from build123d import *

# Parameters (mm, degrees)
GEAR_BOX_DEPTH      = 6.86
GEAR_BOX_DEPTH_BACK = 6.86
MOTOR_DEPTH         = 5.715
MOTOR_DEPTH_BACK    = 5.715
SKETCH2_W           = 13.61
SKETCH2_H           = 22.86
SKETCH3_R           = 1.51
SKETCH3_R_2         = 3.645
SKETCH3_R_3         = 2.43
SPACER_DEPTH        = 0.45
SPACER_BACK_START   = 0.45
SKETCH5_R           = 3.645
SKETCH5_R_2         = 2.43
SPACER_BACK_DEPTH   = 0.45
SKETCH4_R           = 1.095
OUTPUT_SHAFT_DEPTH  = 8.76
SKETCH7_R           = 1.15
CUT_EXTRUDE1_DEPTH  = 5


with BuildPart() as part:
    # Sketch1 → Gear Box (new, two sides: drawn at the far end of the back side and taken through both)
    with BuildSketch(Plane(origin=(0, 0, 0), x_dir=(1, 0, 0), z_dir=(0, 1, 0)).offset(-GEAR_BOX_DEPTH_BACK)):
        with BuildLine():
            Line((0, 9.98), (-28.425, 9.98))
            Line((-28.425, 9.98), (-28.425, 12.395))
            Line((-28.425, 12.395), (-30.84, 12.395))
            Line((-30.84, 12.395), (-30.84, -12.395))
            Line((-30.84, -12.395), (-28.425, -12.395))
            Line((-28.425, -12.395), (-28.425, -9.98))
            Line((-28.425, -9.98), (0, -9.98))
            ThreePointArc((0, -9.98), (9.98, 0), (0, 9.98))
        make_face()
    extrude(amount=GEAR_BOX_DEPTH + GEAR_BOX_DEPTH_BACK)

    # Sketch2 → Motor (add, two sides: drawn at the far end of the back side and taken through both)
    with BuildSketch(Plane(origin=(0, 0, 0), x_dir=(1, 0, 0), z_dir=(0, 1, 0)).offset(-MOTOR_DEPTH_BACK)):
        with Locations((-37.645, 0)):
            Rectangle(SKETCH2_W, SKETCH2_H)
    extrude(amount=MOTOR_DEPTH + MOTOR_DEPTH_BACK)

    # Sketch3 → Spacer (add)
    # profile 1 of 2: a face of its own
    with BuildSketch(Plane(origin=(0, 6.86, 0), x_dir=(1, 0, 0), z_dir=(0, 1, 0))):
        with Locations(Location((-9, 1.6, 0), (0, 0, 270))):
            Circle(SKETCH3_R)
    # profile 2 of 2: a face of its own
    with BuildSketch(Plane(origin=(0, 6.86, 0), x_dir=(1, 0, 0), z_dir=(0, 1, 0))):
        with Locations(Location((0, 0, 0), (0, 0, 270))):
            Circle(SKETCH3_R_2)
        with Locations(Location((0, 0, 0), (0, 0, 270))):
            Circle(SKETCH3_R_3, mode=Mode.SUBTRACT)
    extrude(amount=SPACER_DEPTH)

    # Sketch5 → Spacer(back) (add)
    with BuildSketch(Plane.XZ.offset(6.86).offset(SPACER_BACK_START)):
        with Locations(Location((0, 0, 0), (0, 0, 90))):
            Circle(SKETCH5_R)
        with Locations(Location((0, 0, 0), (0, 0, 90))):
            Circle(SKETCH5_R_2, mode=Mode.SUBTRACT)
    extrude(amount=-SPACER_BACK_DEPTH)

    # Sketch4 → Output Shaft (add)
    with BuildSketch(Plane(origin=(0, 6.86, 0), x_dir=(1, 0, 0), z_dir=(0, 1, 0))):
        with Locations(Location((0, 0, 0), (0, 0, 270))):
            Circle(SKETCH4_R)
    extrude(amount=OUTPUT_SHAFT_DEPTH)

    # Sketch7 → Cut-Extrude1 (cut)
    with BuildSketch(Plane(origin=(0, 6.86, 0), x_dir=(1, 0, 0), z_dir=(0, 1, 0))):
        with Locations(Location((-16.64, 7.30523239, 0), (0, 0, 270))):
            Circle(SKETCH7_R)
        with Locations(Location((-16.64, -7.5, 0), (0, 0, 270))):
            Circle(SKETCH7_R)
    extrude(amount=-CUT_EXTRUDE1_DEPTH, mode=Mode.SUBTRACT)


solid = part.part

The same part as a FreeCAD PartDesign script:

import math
import FreeCAD as App
import Part
import Sketcher

V = App.Vector
Q = App.Units.Quantity


def add_polygon(sketch, points):
    """Adds a closed chain of lines whose ends are joined by coincident constraints."""
    first, n = sketch.GeometryCount, len(points)
    for a, b in zip(points, points[1:] + points[:1]):
        sketch.addGeometry(Part.LineSegment(App.Vector(*a, 0), App.Vector(*b, 0)), False)
    for i in range(n):
        sketch.addConstraint(Sketcher.Constraint("Coincident", first + i, 2, first + (i + 1) % n, 1))

doc = App.newDocument("Part")
body = doc.addObject("PartDesign::Body", "Body")

sketch1 = doc.addObject("Sketcher::SketchObject", "Sketch")
body.addObject(sketch1)
sketch1.AttachmentSupport = (doc.XZ_Plane, [""])
sketch1.MapMode = "FlatFace"
sketch1.addGeometry([
    Part.LineSegment(V(0, -10, 0), V(-28.4, -10, 0)),
    Part.LineSegment(V(-28.4, -10, 0), V(-28.4, -12.4, 0)),
    Part.LineSegment(V(-28.4, -12.4, 0), V(-30.8, -12.4, 0)),
    Part.LineSegment(V(-30.8, -12.4, 0), V(-30.8, 12.4, 0)),
    Part.LineSegment(V(-30.8, 12.4, 0), V(-28.4, 12.4, 0)),
    Part.LineSegment(V(-28.4, 12.4, 0), V(-28.4, 10, 0)),
    Part.LineSegment(V(-28.4, 10, 0), V(0, 10, 0)),
    Part.ArcOfCircle(Part.Circle(V(0, 0, 0), V(0, 0, 1), 10), math.radians(-90), math.radians(90)),
], False)
sketch1.addConstraint([
    Sketcher.Constraint("Coincident", 0, 2, 1, 1),
    Sketcher.Constraint("Coincident", 1, 2, 2, 1),
    Sketcher.Constraint("Coincident", 2, 2, 3, 1),
    Sketcher.Constraint("Coincident", 3, 2, 4, 1),
    Sketcher.Constraint("Coincident", 4, 2, 5, 1),
    Sketcher.Constraint("Coincident", 5, 2, 6, 1),
    Sketcher.Constraint("Tangent", 6, 2, 7, 2),
    Sketcher.Constraint("Tangent", 7, 1, 0, 1),
    Sketcher.Constraint("Horizontal", 0),
    Sketcher.Constraint("Vertical", 1),
    Sketcher.Constraint("Horizontal", 2),
    Sketcher.Constraint("Vertical", 3),
    Sketcher.Constraint("Horizontal", 4),
    Sketcher.Constraint("Vertical", 5),
    Sketcher.Constraint("Horizontal", 6),
    Sketcher.Constraint("Coincident", 7, 3, -1, 1),
    Sketcher.Constraint("Symmetric", 1, 2, 4, 2, -1),
    Sketcher.Constraint("Equal", 4, 1),
    Sketcher.Constraint("Radius", 7, Q("9.98 mm")),
    Sketcher.Constraint("DistanceY", 3, 1, 3, 2, Q("24.79 mm")),
    Sketcher.Constraint("DistanceX", 0, 2, 0, 1, Q("28.425 mm")),
])
pad1 = doc.addObject("PartDesign::Pad", "Pad")
body.addObject(pad1)
pad1.Profile = sketch1
pad1.Type = "TwoLengths"
pad1.Length = 6.86
pad1.Length2 = 6.86
pad1.Reversed = True

sketch2 = doc.addObject("Sketcher::SketchObject", "Sketch001")
body.addObject(sketch2)
sketch2.AttachmentSupport = (doc.XZ_Plane, [""])
sketch2.MapMode = "FlatFace"
add_polygon(sketch2, [(-44, -11), (-44, 11), (-31, 11), (-31, -11)])
sketch2.addConstraint([
    Sketcher.Constraint("Vertical", 0),
    Sketcher.Constraint("Horizontal", 1),
    Sketcher.Constraint("Vertical", 2),
    Sketcher.Constraint("Horizontal", 3),
    Sketcher.Constraint("DistanceX", 1, 1, 1, 2, Q("13.61 mm")),
    Sketcher.Constraint("DistanceY", 0, 1, 0, 2, Q("22.86 mm")),
    Sketcher.Constraint("DistanceX", 0, 2, -1, 1, Q("44.45 mm")),
    Sketcher.Constraint("DistanceY", -1, 1, 0, 2, Q("11.43 mm")),
])
pad2 = doc.addObject("PartDesign::Pad", "Pad001")
body.addObject(pad2)
pad2.Profile = sketch2
pad2.Type = "TwoLengths"
pad2.Length = 5.715
pad2.Length2 = 5.715
pad2.Reversed = True

sketch3 = doc.addObject("Sketcher::SketchObject", "Sketch002")
body.addObject(sketch3)
sketch3.AttachmentSupport = (doc.XZ_Plane, [""])
sketch3.MapMode = "FlatFace"
sketch3.AttachmentOffset = App.Placement(V(0, 0, -6.86), App.Rotation())
sketch3.addGeometry([
    Part.Circle(V(-9, -1.6, 0), V(0, 0, 1), 1.5),
    Part.Circle(V(0, 0, 0), V(0, 0, 1), 3.6),
    Part.Circle(V(0, 0, 0), V(0, 0, 1), 2.4),
], False)
sketch3.addConstraint([
    Sketcher.Constraint("Coincident", 1, 3, -1, 1),
    Sketcher.Constraint("Coincident", 2, 3, -1, 1),
    Sketcher.Constraint("Diameter", 0, Q("3.02 mm")),
    Sketcher.Constraint("Diameter", 1, Q("7.29 mm")),
    Sketcher.Constraint("Diameter", 2, Q("4.86 mm")),
    Sketcher.Constraint("DistanceX", 0, 3, -1, 1, Q("9 mm")),
    Sketcher.Constraint("DistanceY", 0, 3, -1, 1, Q("1.6 mm")),
])
pad3 = doc.addObject("PartDesign::Pad", "Pad002")
body.addObject(pad3)
pad3.Profile = sketch3
pad3.Length = 0.45
pad3.Reversed = True

sketch4 = doc.addObject("Sketcher::SketchObject", "Sketch003")
body.addObject(sketch4)
sketch4.AttachmentSupport = (doc.XZ_Plane, [""])
sketch4.MapMode = "FlatFace"
sketch4.AttachmentOffset = App.Placement(V(0, 0, 7.31), App.Rotation())
sketch4.addGeometry([
    Part.Circle(V(0, 0, 0), V(0, 0, 1), 3.6),
    Part.Circle(V(0, 0, 0), V(0, 0, 1), 2.4),
], False)
sketch4.addConstraint([
    Sketcher.Constraint("Coincident", 0, 3, -1, 1),
    Sketcher.Constraint("Coincident", 1, 3, -1, 1),
    Sketcher.Constraint("Diameter", 0, Q("7.29 mm")),
    Sketcher.Constraint("Diameter", 1, Q("4.86 mm")),
])
pad4 = doc.addObject("PartDesign::Pad", "Pad003")
body.addObject(pad4)
pad4.Profile = sketch4
pad4.Length = 0.45
pad4.Reversed = True

sketch5 = doc.addObject("Sketcher::SketchObject", "Sketch004")
body.addObject(sketch5)
sketch5.AttachmentSupport = (doc.XZ_Plane, [""])
sketch5.MapMode = "FlatFace"
sketch5.AttachmentOffset = App.Placement(V(0, 0, -6.86), App.Rotation())
sketch5.addGeometry(Part.Circle(V(0, 0, 0), V(0, 0, 1), 1.1), False)
sketch5.addConstraint([
    Sketcher.Constraint("Coincident", 0, 3, -1, 1),
    Sketcher.Constraint("Diameter", 0, Q("2.19 mm")),
])
pad5 = doc.addObject("PartDesign::Pad", "Pad004")
body.addObject(pad5)
pad5.Profile = sketch5
pad5.Length = 8.76
pad5.Reversed = True

sketch6 = doc.addObject("Sketcher::SketchObject", "Sketch005")
body.addObject(sketch6)
sketch6.AttachmentSupport = (doc.XZ_Plane, [""])
sketch6.MapMode = "FlatFace"
sketch6.AttachmentOffset = App.Placement(V(0, 0, -6.86), App.Rotation())
sketch6.addGeometry([
    Part.Circle(V(-16.6, -7.3, 0), V(0, 0, 1), 1.1),
    Part.Circle(V(-16.6, 7.5, 0), V(0, 0, 1), 1.1),
], False)
sketch6.addConstraint([
    Sketcher.Constraint("Equal", 0, 1),
    Sketcher.Constraint("Vertical", 0, 3, 1, 3),
    Sketcher.Constraint("Diameter", 0, Q("2.3 mm")),
    Sketcher.Constraint("DistanceY", -1, 1, 1, 3, Q("7.5 mm")),
    Sketcher.Constraint("DistanceX", 0, 3, -1, 1, Q("16.64 mm")),
    Sketcher.Constraint("DistanceY", 0, 3, -1, 1, Q("7.305232 mm")),
])
pocket1 = doc.addObject("PartDesign::Pocket", "Pocket")
body.addObject(pocket1)
pocket1.Profile = sketch6
pocket1.Length = 5
pocket1.Reversed = True

doc.recompute()
